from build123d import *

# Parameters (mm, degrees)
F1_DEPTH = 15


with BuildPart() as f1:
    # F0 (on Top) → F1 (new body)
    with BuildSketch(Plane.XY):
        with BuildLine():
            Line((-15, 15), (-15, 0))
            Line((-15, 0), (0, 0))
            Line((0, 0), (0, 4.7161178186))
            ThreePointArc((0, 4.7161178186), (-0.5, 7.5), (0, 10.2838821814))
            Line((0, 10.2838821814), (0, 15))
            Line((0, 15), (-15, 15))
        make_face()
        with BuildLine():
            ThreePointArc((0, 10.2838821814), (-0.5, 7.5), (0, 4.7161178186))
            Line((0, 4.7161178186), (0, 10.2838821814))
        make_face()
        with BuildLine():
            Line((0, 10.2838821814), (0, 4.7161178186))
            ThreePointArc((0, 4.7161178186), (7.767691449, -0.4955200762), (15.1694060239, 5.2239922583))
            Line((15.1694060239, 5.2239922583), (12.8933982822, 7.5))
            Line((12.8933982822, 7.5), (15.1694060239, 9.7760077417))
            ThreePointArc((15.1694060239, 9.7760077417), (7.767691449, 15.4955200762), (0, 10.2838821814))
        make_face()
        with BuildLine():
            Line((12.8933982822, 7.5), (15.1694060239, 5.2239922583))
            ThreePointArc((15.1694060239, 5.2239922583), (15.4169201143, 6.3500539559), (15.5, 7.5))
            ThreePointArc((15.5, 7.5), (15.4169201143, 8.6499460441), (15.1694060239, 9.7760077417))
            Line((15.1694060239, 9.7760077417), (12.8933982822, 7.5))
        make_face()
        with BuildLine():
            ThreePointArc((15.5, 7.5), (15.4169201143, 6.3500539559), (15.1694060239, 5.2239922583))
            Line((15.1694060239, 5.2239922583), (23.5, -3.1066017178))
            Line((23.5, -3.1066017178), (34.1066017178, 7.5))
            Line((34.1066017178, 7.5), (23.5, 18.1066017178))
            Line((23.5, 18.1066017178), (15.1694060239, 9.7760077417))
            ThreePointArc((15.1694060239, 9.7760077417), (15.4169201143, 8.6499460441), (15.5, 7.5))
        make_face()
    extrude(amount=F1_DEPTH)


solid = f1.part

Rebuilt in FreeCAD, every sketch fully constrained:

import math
import FreeCAD as App
import Part
import Sketcher
from FreeCAD import Vector
Q = App.Units.Quantity

doc = App.newDocument("Part")
params = doc.addObject("Spreadsheet::Sheet", "Params")
for row, (alias, value) in enumerate([
    ("sketch1_radius", "8 mm"),
    ("sketch1_width", "15 mm"),
    ("sketch1_length", "15 mm"),
    ("pad1_length", "15 mm"),
], start=1):
    params.set(f"A{row}", alias)
    params.set(f"B{row}", "=" + value)
    params.setAlias(f"B{row}", alias)

body = doc.addObject("PartDesign::Body", "Body")

# Sketch on XY plane
sketch1 = body.newObject("Sketcher::SketchObject", "Sketch")
sketch1.AttachmentSupport = (doc.getObject("XY_Plane"), [""])
sketch1.MapMode = "FlatFace"
sketch1.addGeometry(Part.LineSegment(Vector(-15, 15, 0), Vector(-15, 0, 0)), False)
sketch1.addGeometry(Part.LineSegment(Vector(-15, 0, 0), Vector(0, 0, 0)), False)
sketch1.addGeometry(Part.LineSegment(Vector(0, 0, 0), Vector(0, 4.716118, 0)), False)
sketch1.addGeometry(Part.ArcOfCircle(Part.Circle(Vector(7.5, 7.5, 0), Vector(0, 0, 1), 8), math.radians(-159.635865), math.radians(-16.529021)), False)
sketch1.addGeometry(Part.LineSegment(Vector(15.169406, 5.223992, 0), Vector(23.5, -3.106602, 0)), False)
sketch1.addGeometry(Part.LineSegment(Vector(23.5, -3.106602, 0), Vector(34.106602, 7.5, 0)), False)
sketch1.addGeometry(Part.LineSegment(Vector(34.106602, 7.5, 0), Vector(23.5, 18.106602, 0)), False)
sketch1.addGeometry(Part.LineSegment(Vector(23.5, 18.106602, 0), Vector(15.169406, 9.776008, 0)), False)
sketch1.addGeometry(Part.ArcOfCircle(Part.Circle(Vector(7.5, 7.5, 0), Vector(0, 0, 1), 8), math.radians(16.529021), math.radians(159.635865)), False)
sketch1.addGeometry(Part.LineSegment(Vector(0, 10.283882, 0), Vector(0, 15, 0)), False)
sketch1.addGeometry(Part.LineSegment(Vector(0, 15, 0), Vector(-15, 15, 0)), False)
sketch1.addConstraint(Sketcher.Constraint("Coincident", 0, 2, 1, 1))
sketch1.addConstraint(Sketcher.Constraint("Coincident", 1, 2, 2, 1))
sketch1.addConstraint(Sketcher.Constraint("Coincident", 2, 2, 3, 1))
sketch1.addConstraint(Sketcher.Constraint("Coincident", 3, 2, 4, 1))
sketch1.addConstraint(Sketcher.Constraint("Coincident", 4, 2, 5, 1))
sketch1.addConstraint(Sketcher.Constraint("Coincident", 5, 2, 6, 1))
sketch1.addConstraint(Sketcher.Constraint("Coincident", 6, 2, 7, 1))
sketch1.addConstraint(Sketcher.Constraint("Coincident", 7, 2, 8, 1))
sketch1.addConstraint(Sketcher.Constraint("Coincident", 8, 2, 9, 1))
sketch1.addConstraint(Sketcher.Constraint("Coincident", 9, 2, 10, 1))
sketch1.addConstraint(Sketcher.Constraint("Coincident", 10, 2, 0, 1))
sketch1.addConstraint(Sketcher.Constraint("Vertical", 0))
sketch1.addConstraint(Sketcher.Constraint("Horizontal", 1))
sketch1.addConstraint(Sketcher.Constraint("Vertical", 2))
sketch1.addConstraint(Sketcher.Constraint("Vertical", 9))
sketch1.addConstraint(Sketcher.Constraint("Horizontal", 10))
sketch1.addConstraint(Sketcher.Constraint("Coincident", 1, 2, -1, 1))
sketch1.addConstraint(Sketcher.Constraint("Coincident", 8, 3, 3, 3))
sketch1.addConstraint(Sketcher.Constraint("Equal", 3, 8))
sketch1.addConstraint(Sketcher.Constraint("PointOnObject", 8, 2, -2))
sketch1.addConstraint(Sketcher.Constraint("Perpendicular", 4, 5))
sketch1.addConstraint(Sketcher.Constraint("Perpendicular", 5, 6))
sketch1.addConstraint(Sketcher.Constraint("Perpendicular", 6, 7))
sketch1.addConstraint(Sketcher.Constraint("Horizontal", 8, 3, 5, 2))
sketch1.addConstraint(Sketcher.Constraint("Vertical", 4, 2, 6, 2))
sketch1.addConstraint(Sketcher.Constraint("Vertical", 3, 2, 7, 2))
sketch1.addConstraint(Sketcher.Constraint("Equal", 10, 0))
sketch1.addConstraint(Sketcher.Constraint("Equal", 2, 9))
sketch1.addConstraint(Sketcher.Constraint("Radius", 3, Q("8 mm")))
sketch1.addConstraint(Sketcher.Constraint("DistanceX", 1, 1, 1, 2, Q("15 mm")))
sketch1.addConstraint(Sketcher.Constraint("Distance", 5, Q("15 mm")))
sketch1.addConstraint(Sketcher.Constraint("DistanceX", 3, 3, 4, 2, Q("16 mm")))
sketch1.addConstraint(Sketcher.Constraint("DistanceX", -1, 1, 3, 3, Q("7.5 mm")))
sketch1.setExpression("Constraints[28]", "Params.sketch1_radius")
sketch1.setExpression("Constraints[29]", "Params.sketch1_width")
sketch1.setExpression("Constraints[30]", "Params.sketch1_length")
pad1 = body.newObject("PartDesign::Pad", "Pad")
pad1.Profile = sketch1
pad1.setExpression("Length", "Params.pad1_length")

doc.recompute()
